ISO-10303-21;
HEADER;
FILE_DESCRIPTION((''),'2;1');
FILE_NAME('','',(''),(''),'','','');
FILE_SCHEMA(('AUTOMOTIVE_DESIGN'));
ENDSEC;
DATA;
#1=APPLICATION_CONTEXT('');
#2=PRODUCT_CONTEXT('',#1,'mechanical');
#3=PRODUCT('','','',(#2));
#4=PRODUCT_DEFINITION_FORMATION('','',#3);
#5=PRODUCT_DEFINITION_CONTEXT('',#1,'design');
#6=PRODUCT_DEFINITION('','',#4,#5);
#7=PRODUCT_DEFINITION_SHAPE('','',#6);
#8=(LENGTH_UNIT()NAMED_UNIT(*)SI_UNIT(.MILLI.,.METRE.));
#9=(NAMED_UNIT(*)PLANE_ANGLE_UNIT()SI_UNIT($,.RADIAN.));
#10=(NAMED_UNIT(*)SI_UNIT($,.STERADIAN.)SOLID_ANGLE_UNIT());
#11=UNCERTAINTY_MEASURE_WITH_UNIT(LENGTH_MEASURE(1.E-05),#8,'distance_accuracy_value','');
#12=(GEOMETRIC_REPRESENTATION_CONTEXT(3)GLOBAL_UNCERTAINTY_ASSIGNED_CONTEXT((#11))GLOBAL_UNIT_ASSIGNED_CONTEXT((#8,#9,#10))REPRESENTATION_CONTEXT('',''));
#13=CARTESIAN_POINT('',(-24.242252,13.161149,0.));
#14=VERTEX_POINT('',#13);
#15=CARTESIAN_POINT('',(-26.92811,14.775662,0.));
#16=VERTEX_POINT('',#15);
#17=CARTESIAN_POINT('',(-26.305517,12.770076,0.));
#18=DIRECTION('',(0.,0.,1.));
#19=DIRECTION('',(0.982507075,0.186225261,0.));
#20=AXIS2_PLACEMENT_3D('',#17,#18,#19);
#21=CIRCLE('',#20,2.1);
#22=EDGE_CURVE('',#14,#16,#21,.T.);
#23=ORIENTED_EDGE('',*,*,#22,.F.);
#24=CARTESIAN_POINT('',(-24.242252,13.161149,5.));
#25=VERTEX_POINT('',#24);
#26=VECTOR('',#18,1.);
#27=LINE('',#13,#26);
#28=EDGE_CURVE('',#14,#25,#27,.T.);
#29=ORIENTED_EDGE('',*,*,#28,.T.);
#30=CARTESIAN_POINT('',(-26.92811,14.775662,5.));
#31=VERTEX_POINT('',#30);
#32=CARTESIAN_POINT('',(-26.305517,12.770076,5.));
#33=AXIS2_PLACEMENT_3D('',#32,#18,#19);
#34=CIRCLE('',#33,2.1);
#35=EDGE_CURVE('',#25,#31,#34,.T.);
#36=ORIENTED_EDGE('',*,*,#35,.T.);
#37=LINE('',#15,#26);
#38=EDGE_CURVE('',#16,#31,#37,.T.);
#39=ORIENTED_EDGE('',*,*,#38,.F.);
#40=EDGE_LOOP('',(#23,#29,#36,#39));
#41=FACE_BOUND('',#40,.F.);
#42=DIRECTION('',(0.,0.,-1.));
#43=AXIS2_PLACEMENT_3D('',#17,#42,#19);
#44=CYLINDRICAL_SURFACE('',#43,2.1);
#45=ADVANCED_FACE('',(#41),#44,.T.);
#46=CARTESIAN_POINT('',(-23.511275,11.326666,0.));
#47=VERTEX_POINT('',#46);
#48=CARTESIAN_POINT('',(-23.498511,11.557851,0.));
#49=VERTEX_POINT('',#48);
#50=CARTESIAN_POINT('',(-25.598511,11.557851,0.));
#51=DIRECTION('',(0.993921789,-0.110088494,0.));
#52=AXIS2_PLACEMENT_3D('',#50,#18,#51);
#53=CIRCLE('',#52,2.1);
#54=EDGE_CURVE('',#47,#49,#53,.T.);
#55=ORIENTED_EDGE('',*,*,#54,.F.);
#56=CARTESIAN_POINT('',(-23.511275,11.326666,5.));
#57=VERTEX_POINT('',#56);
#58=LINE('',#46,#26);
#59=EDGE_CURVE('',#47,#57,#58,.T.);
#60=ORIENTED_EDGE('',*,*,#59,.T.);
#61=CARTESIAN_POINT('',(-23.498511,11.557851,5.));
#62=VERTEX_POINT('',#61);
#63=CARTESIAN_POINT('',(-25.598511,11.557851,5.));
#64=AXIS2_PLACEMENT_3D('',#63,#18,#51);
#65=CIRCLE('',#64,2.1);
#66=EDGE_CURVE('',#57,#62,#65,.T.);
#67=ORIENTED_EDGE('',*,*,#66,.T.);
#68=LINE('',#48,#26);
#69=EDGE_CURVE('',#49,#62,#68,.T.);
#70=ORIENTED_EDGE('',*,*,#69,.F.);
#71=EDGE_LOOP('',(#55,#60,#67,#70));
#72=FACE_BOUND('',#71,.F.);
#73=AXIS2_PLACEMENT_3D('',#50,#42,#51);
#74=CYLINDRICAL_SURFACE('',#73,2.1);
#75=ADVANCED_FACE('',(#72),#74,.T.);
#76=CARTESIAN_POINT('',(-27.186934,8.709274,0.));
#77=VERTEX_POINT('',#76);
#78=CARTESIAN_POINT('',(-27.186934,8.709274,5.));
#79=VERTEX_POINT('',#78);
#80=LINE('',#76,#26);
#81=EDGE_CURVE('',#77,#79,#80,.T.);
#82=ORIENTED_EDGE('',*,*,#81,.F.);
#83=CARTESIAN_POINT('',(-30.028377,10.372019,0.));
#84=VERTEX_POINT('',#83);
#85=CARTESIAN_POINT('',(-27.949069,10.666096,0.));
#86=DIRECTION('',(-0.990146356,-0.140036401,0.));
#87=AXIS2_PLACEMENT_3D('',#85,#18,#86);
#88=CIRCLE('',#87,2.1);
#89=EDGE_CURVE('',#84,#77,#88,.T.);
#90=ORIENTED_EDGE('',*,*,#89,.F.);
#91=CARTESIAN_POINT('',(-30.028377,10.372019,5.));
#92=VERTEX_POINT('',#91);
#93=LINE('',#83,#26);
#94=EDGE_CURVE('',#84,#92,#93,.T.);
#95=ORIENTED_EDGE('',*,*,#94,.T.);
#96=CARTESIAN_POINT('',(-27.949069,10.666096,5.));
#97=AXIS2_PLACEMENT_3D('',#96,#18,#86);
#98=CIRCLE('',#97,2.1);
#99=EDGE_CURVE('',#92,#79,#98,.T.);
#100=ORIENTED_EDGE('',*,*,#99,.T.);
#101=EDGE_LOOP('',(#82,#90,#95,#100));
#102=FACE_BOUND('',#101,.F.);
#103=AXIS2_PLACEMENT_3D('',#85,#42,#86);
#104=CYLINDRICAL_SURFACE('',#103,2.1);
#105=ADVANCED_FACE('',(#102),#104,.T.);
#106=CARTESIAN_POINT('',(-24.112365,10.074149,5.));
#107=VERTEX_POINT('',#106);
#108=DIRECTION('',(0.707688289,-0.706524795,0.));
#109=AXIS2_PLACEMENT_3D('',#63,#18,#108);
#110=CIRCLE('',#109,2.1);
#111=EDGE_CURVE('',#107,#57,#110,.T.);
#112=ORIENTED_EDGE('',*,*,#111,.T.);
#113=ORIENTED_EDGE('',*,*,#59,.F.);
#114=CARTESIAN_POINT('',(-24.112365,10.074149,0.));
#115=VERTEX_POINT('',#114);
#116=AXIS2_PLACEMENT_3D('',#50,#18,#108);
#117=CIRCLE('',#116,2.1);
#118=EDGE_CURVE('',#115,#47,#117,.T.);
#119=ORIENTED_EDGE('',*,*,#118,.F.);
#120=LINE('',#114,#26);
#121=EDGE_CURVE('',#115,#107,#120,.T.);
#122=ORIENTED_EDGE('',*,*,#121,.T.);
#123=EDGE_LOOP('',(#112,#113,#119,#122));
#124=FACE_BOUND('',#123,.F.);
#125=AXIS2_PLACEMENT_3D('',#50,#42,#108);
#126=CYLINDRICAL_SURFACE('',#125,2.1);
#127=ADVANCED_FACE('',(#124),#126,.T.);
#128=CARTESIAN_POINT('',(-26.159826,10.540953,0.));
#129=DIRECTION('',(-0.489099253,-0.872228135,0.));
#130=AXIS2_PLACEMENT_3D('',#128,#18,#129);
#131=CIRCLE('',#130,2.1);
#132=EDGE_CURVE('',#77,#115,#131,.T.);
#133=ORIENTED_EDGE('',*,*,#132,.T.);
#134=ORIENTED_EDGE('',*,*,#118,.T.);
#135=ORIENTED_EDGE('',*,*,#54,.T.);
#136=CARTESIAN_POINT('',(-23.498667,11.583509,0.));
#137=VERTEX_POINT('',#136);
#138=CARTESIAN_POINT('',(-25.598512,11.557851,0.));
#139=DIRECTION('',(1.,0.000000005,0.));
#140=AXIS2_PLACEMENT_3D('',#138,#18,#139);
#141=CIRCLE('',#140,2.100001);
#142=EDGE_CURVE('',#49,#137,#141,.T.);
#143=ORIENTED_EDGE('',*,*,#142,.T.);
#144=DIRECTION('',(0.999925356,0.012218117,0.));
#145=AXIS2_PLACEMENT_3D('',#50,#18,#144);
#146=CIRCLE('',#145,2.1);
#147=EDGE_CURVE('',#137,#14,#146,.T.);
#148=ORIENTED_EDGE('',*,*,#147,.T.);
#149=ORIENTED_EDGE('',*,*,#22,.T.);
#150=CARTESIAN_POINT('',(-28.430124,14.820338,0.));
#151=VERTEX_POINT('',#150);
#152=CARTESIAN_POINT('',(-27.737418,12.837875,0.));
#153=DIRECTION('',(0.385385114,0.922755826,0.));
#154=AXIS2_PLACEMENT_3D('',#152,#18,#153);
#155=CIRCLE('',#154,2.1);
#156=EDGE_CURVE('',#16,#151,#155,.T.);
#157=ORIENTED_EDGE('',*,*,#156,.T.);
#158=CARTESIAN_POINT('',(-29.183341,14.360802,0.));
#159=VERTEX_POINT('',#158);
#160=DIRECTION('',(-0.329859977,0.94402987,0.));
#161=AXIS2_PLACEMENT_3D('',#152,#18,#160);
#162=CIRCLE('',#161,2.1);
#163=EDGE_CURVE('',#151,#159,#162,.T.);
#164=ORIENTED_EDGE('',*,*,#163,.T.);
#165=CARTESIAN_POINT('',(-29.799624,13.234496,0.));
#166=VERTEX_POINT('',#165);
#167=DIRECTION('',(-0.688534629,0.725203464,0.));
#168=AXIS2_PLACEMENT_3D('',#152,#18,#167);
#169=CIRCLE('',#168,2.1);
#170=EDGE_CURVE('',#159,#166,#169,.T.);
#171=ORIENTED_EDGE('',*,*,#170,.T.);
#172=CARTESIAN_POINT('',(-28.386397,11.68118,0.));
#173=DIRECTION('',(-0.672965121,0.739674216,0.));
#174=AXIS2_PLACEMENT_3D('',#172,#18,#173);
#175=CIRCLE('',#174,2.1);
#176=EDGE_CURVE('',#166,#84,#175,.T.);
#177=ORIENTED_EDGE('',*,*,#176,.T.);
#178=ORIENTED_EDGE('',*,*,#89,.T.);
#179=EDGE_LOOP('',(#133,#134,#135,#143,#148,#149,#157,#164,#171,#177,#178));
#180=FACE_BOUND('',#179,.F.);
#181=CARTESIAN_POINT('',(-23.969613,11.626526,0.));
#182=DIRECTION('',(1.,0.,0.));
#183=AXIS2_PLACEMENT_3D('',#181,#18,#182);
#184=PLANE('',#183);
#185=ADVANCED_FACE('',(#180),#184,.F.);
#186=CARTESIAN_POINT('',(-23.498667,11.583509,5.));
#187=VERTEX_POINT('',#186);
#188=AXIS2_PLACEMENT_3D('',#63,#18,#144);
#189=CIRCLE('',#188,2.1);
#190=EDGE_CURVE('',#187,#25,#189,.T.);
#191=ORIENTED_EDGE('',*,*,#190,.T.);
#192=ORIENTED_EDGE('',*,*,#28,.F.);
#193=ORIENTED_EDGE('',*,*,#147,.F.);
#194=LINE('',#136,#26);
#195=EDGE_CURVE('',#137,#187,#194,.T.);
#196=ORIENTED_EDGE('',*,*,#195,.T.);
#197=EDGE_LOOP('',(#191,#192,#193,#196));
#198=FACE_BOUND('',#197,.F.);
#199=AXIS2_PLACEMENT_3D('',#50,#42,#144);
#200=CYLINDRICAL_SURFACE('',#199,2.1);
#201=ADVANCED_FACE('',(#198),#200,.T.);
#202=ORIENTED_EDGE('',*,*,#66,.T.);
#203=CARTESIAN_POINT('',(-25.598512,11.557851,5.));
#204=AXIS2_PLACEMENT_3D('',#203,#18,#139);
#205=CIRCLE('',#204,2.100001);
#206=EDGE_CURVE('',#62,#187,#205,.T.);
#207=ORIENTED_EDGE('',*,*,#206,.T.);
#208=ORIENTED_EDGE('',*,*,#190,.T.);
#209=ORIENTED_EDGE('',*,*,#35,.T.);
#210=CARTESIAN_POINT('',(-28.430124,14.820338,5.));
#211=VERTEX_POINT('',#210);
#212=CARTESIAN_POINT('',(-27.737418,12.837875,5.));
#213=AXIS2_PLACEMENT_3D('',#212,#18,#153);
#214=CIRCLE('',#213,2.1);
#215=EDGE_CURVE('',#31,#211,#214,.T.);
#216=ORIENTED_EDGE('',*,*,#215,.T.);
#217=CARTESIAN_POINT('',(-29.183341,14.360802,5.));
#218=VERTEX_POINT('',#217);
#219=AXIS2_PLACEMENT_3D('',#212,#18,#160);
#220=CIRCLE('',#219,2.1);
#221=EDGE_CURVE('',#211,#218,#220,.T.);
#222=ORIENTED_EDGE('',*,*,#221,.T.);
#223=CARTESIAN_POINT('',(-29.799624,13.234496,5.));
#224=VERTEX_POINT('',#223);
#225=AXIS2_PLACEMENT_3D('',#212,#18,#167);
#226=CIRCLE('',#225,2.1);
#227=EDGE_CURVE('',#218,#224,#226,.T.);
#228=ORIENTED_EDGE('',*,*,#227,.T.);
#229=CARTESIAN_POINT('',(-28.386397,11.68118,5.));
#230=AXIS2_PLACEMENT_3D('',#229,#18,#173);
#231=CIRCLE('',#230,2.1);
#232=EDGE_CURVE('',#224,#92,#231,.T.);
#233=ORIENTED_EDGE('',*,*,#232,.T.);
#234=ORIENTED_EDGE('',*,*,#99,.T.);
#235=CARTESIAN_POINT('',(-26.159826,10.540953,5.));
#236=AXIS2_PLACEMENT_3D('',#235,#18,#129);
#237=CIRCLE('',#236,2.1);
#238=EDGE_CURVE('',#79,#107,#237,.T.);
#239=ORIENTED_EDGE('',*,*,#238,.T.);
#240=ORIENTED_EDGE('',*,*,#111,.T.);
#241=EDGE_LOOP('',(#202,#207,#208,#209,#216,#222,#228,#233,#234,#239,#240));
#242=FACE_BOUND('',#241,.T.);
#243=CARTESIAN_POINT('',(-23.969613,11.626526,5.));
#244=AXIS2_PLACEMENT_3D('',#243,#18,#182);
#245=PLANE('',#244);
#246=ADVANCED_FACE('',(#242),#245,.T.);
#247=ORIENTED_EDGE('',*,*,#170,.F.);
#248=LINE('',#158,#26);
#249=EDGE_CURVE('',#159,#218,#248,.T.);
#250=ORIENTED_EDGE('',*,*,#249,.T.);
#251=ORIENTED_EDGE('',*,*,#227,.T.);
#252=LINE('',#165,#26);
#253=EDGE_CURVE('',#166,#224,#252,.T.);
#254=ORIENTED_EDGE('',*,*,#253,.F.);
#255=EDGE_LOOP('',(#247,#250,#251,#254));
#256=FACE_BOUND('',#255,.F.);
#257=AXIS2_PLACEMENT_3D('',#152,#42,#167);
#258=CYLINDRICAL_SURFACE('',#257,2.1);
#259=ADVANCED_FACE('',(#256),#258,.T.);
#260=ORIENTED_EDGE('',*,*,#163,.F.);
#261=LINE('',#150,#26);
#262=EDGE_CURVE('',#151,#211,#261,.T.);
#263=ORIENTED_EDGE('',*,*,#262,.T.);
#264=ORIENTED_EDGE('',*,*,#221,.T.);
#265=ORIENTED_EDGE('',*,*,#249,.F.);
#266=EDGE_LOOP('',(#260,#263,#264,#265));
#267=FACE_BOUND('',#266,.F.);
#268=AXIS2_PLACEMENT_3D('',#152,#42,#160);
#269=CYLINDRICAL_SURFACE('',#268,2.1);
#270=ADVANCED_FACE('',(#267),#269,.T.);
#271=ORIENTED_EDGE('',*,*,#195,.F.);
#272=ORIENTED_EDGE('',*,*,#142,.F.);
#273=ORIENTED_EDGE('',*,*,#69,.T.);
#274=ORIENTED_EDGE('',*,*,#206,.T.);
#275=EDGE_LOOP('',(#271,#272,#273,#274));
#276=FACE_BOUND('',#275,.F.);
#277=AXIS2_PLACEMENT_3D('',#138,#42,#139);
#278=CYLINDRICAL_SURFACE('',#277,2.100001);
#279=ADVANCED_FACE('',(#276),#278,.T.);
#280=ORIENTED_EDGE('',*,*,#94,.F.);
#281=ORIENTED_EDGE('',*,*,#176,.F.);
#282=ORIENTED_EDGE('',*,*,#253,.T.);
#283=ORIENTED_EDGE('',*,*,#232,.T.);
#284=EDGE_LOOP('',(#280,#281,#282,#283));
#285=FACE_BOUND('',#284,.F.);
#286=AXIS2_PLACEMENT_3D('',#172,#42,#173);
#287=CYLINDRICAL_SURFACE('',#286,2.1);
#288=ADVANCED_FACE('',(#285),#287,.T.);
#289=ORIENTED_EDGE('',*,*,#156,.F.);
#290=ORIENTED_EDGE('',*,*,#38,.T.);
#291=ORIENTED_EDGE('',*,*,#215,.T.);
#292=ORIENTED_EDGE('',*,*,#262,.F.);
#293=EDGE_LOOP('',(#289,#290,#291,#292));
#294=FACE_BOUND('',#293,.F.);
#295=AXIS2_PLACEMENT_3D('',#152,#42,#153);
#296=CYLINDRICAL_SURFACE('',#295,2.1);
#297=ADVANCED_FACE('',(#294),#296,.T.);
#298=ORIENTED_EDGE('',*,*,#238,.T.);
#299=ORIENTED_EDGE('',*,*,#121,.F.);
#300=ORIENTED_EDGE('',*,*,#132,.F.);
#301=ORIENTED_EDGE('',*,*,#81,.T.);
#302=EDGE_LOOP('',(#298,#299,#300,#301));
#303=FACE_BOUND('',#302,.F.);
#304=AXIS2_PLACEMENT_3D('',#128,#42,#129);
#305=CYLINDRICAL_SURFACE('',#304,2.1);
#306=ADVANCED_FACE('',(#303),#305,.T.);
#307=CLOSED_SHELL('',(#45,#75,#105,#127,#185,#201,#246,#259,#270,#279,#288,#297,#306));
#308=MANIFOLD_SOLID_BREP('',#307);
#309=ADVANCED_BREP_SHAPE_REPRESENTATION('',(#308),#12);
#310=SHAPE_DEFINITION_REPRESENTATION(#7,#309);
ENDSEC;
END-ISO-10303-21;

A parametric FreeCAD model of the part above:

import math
import FreeCAD as App
import Part
import Sketcher
Q = App.Units.Quantity

doc = App.newDocument("Part")
body = doc.addObject("PartDesign::Body", "Body")

# Sketch on XY plane
sketch1 = body.newObject("Sketcher::SketchObject", "Sketch")
sketch1.AttachmentSupport = (doc.getObject("XY_Plane"), [""])
sketch1.MapMode = "FlatFace"
sketch1.addGeometry(Part.ArcOfCircle(Part.Circle(App.Vector(-28.386, 11.681, 0), App.Vector(0, 0, 1), 2.1), math.radians(132), math.radians(219)), False)
sketch1.addGeometry(Part.ArcOfCircle(Part.Circle(App.Vector(-27.949, 10.666, 0), App.Vector(0, 0, 1), 2.1), math.radians(-172), math.radians(-69)), False)
sketch1.addGeometry(Part.ArcOfCircle(Part.Circle(App.Vector(-26.16, 10.541, 0), App.Vector(0, 0, 1), 2.1), math.radians(-119), math.radians(-13)), False)
sketch1.addGeometry(Part.ArcOfCircle(Part.Circle(App.Vector(-25.599, 11.558, 0), App.Vector(0, 0, 1), 2.1), math.radians(-45), math.radians(-6)), False)
sketch1.addGeometry(Part.ArcOfCircle(Part.Circle(App.Vector(-25.599, 11.558, 0), App.Vector(0, 0, 1), 2.1), math.radians(-6.32), math.radians(0)), False)
sketch1.addGeometry(Part.ArcOfCircle(Part.Circle(App.Vector(-25.599, 11.558, 0), App.Vector(0, 0, 1), 2.1), math.radians(0), math.radians(0.7)), False)
sketch1.addGeometry(Part.ArcOfCircle(Part.Circle(App.Vector(-25.599, 11.558, 0), App.Vector(0, 0, 1), 2.1), math.radians(1), math.radians(50)), False)
sketch1.addGeometry(Part.ArcOfCircle(Part.Circle(App.Vector(-26.306, 12.77, 0), App.Vector(0, 0, 1), 2.1), math.radians(11), math.radians(107)), False)
sketch1.addGeometry(Part.ArcOfCircle(Part.Circle(App.Vector(-27.737, 12.838, 0), App.Vector(0, 0, 1), 2.1), math.radians(67), math.radians(109)), False)
sketch1.addGeometry(Part.ArcOfCircle(Part.Circle(App.Vector(-27.737, 12.838, 0), App.Vector(0, 0, 1), 2.1), math.radians(109), math.radians(134)), False)
sketch1.addGeometry(Part.ArcOfCircle(Part.Circle(App.Vector(-27.737, 12.838, 0), App.Vector(0, 0, 1), 2.1), math.radians(134), math.radians(169)), False)
sketch1.addConstraint(Sketcher.Constraint("Coincident", 0, 2, 1, 1))
sketch1.addConstraint(Sketcher.Constraint("Coincident", 1, 2, 2, 1))
sketch1.addConstraint(Sketcher.Constraint("Coincident", 2, 2, 3, 1))
sketch1.addConstraint(Sketcher.Constraint("Tangent", 3, 2, 4, 1))
sketch1.addConstraint(Sketcher.Constraint("Tangent", 4, 2, 5, 1))
sketch1.addConstraint(Sketcher.Constraint("Tangent", 5, 2, 6, 1))
sketch1.addConstraint(Sketcher.Constraint("Coincident", 6, 2, 7, 1))
sketch1.addConstraint(Sketcher.Constraint("Coincident", 7, 2, 8, 1))
sketch1.addConstraint(Sketcher.Constraint("Tangent", 8, 2, 9, 1))
sketch1.addConstraint(Sketcher.Constraint("Tangent", 9, 2, 10, 1))
sketch1.addConstraint(Sketcher.Constraint("Coincident", 10, 2, 0, 1))
sketch1.addConstraint(Sketcher.Constraint("Coincident", 5, 3, 3, 3))
sketch1.addConstraint(Sketcher.Constraint("Coincident", 10, 3, 8, 3))
sketch1.addConstraint(Sketcher.Constraint("Equal", 0, 1))
sketch1.addConstraint(Sketcher.Constraint("Equal", 1, 2))
sketch1.addConstraint(Sketcher.Constraint("Equal", 2, 3))
sketch1.addConstraint(Sketcher.Constraint("Equal", 5, 6))
sketch1.addConstraint(Sketcher.Constraint("Equal", 6, 7))
sketch1.addConstraint(Sketcher.Constraint("Equal", 7, 8))
sketch1.addConstraint(Sketcher.Constraint("Horizontal", 6, 3, 4, 2))
sketch1.addConstraint(Sketcher.Constraint("Radius", 0, Q("2.1 mm")))
sketch1.addConstraint(Sketcher.Constraint("DistanceY", 2, 3, 3, 3, Q("1.016898 mm")))
sketch1.addConstraint(Sketcher.Constraint("DistanceX", 8, 3, 7, 3, Q("1.431902 mm")))
sketch1.addConstraint(Sketcher.Constraint("DistanceY", 7, 3, 8, 3, Q("0.067799 mm")))
sketch1.addConstraint(Sketcher.Constraint("DistanceX", 10, 2, 8, 2, Q("1.3695 mm")))
sketch1.addConstraint(Sketcher.Constraint("DistanceY", -1, 1, 0, 3, Q("11.68118 mm")))
sketch1.addConstraint(Sketcher.Constraint("DistanceX", 1, 3, -1, 1, Q("27.949069 mm")))
sketch1.addConstraint(Sketcher.Constraint("DistanceX", 3, 3, -1, 1, Q("25.598511 mm")))
sketch1.addConstraint(Sketcher.Constraint("DistanceY", -1, 1, 3, 3, Q("11.557851 mm")))
sketch1.addConstraint(Sketcher.Constraint("DistanceX", 8, 3, -1, 1, Q("27.737418 mm")))
sketch1.addConstraint(Sketcher.Constraint("DistanceY", -1, 1, 0, 2, Q("10.372019 mm")))
sketch1.addConstraint(Sketcher.Constraint("DistanceY", -1, 1, 2, 2, Q("10.074149 mm")))
sketch1.addConstraint(Sketcher.Constraint("DistanceY", -1, 1, 5, 2, Q("11.583509 mm")))
sketch1.addConstraint(Sketcher.Constraint("DistanceX", 6, 2, -1, 1, Q("24.242252 mm")))
sketch1.addConstraint(Sketcher.Constraint("DistanceX", 9, 2, -1, 1, Q("29.183341 mm")))
sketch1.addConstraint(Sketcher.Constraint("DistanceX", 0, 3, 2, 3, Q("2.226571 mm")))
sketch1.addConstraint(Sketcher.Constraint("DistanceX", 2, 2, 3, 2, Q("0.60109 mm")))
pad1 = body.newObject("PartDesign::Pad", "Pad")
pad1.Profile = sketch1
pad1.Length = 5

doc.recompute()
